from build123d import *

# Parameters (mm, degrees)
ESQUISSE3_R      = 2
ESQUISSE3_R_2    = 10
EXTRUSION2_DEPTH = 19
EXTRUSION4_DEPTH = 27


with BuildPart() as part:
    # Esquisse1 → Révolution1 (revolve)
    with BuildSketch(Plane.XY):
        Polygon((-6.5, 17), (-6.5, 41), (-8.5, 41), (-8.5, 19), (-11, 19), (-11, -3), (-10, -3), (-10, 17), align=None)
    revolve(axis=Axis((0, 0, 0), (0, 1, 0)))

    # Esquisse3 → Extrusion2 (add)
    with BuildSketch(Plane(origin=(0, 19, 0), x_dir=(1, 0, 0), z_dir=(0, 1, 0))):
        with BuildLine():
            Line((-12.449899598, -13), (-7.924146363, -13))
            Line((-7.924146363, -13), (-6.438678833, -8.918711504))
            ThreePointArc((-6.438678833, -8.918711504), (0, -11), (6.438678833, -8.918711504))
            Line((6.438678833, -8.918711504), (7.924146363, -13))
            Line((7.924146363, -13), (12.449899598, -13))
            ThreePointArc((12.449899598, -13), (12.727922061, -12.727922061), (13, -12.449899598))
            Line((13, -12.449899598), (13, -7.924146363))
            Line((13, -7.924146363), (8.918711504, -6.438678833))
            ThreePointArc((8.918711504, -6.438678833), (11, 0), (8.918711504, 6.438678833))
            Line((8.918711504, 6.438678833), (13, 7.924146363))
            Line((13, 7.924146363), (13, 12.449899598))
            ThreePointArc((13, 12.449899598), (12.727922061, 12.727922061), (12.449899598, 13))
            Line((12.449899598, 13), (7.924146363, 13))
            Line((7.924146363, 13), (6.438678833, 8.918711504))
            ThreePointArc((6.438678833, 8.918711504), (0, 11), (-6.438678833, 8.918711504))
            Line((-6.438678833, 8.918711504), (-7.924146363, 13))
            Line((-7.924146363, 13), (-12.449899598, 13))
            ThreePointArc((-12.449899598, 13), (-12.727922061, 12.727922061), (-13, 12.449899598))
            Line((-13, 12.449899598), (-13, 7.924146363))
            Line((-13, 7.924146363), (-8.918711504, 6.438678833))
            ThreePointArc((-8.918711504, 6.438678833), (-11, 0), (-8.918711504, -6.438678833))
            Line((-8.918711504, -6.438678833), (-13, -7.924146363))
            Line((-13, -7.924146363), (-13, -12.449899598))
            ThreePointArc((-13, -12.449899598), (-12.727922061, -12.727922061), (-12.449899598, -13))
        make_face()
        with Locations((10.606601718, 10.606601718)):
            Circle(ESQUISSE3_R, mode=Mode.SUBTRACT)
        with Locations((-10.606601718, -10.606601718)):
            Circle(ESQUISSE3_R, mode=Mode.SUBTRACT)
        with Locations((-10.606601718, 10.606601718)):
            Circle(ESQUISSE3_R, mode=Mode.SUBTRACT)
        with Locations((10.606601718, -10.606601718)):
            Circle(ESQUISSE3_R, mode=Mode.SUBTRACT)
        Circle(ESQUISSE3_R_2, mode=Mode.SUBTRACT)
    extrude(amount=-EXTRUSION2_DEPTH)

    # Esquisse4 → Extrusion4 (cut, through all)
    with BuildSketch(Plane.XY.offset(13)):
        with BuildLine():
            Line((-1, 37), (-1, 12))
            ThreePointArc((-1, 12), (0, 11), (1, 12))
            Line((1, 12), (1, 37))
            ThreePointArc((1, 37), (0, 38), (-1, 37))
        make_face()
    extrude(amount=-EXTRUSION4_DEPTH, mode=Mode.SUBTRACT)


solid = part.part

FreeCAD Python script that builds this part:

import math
import FreeCAD as App
import Part
import Sketcher

V = App.Vector
Q = App.Units.Quantity


def add_polygon(sketch, points):
    """Adds a closed chain of lines whose ends are joined by coincident constraints."""
    first, n = sketch.GeometryCount, len(points)
    for a, b in zip(points, points[1:] + points[:1]):
        sketch.addGeometry(Part.LineSegment(App.Vector(*a, 0), App.Vector(*b, 0)), False)
    for i in range(n):
        sketch.addConstraint(Sketcher.Constraint("Coincident", first + i, 2, first + (i + 1) % n, 1))

doc = App.newDocument("Part")
body = doc.addObject("PartDesign::Body", "Body")

# Sketch on XY plane
sketch1 = doc.addObject("Sketcher::SketchObject", "Sketch")
body.addObject(sketch1)
sketch1.AttachmentSupport = (doc.XY_Plane, [""])
sketch1.MapMode = "FlatFace"
add_polygon(sketch1, [(-6.5, 17), (-6.5, 41), (-8.5, 41), (-8.5, 19), (-11, 19), (-11, -3), (-10, -3), (-10, 17)])  # lines 0-7
sketch1.addConstraint(Sketcher.Constraint("Vertical", 0))
sketch1.addConstraint(Sketcher.Constraint("Horizontal", 1))
sketch1.addConstraint(Sketcher.Constraint("Vertical", 2))
sketch1.addConstraint(Sketcher.Constraint("Horizontal", 3))
sketch1.addConstraint(Sketcher.Constraint("Vertical", 4))
sketch1.addConstraint(Sketcher.Constraint("Horizontal", 5))
sketch1.addConstraint(Sketcher.Constraint("Vertical", 6))
sketch1.addConstraint(Sketcher.Constraint("Horizontal", 7))
sketch1.addConstraint(Sketcher.Constraint("Equal", 2, 4))
sketch1.addConstraint(Sketcher.Constraint("DistanceX", 1, 2, 1, 1, 2.0))
sketch1.addConstraint(Sketcher.Constraint("DistanceX", 5, 1, 5, 2, 1.0))
sketch1.addConstraint(Sketcher.Constraint("DistanceY", 0, 1, 0, 2, 24.0))
sketch1.addConstraint(Sketcher.Constraint("DistanceY", 2, 2, 2, 1, 22.0))
sketch1.addConstraint(Sketcher.Constraint("DistanceX", 3, 2, 3, 1, 2.5))
sketch1.addConstraint(Sketcher.Constraint("DistanceY", -1, 1, 0, 2, 41.0))
sketch1.addConstraint(Sketcher.Constraint("DistanceX", 3, 2, -1, 1, 11.0))
revolution = doc.addObject("PartDesign::Revolution", "Revolution")
body.addObject(revolution)
revolution.Profile = sketch1
revolution.ReferenceAxis = (sketch1, ["V_Axis"])
revolution.Angle = 360

# Sketch on XZ plane
sketch2 = doc.addObject("Sketcher::SketchObject", "Sketch001")
body.addObject(sketch2)
sketch2.AttachmentSupport = (doc.XZ_Plane, [""])
sketch2.MapMode = "FlatFace"
sketch2.AttachmentOffset = App.Placement(V(0, 0, -19), App.Rotation())
sketch2.addGeometry(Part.LineSegment(V(-12.4499, 13, 0), V(-7.924146, 13, 0)), False)
sketch2.addGeometry(Part.LineSegment(V(-7.924146, 13, 0), V(-6.438679, 8.918712, 0)), False)
sketch2.addGeometry(Part.ArcOfCircle(Part.Circle(V(0, 0, 0), V(0, 0, 1), 11), math.radians(54.17338), math.radians(125.82662)), False)
sketch2.addGeometry(Part.LineSegment(V(6.438679, 8.918712, 0), V(7.924146, 13, 0)), False)
sketch2.addGeometry(Part.LineSegment(V(7.924146, 13, 0), V(12.4499, 13, 0)), False)
sketch2.addGeometry(Part.ArcOfCircle(Part.Circle(V(-0.000002, -0.000002, 0), V(0, 0, 1), 18.000002), math.radians(43.761743), math.radians(46.238257)), False)
sketch2.addGeometry(Part.LineSegment(V(13, 12.4499, 0), V(13, 7.924146, 0)), False)
sketch2.addGeometry(Part.LineSegment(V(13, 7.924146, 0), V(8.918712, 6.438679, 0)), False)
sketch2.addGeometry(Part.ArcOfCircle(Part.Circle(V(0, 0, 0), V(0, 0, 1), 11), math.radians(-35.82662), math.radians(35.82662)), False)
sketch2.addGeometry(Part.LineSegment(V(8.918712, -6.438679, 0), V(13, -7.924146, 0)), False)
sketch2.addGeometry(Part.LineSegment(V(13, -7.924146, 0), V(13, -12.4499, 0)), False)
sketch2.addGeometry(Part.ArcOfCircle(Part.Circle(V(-0.000002, 0.000002, 0), V(0, 0, 1), 18.000002), math.radians(-46.238257), math.radians(-43.761743)), False)
sketch2.addGeometry(Part.LineSegment(V(12.4499, -13, 0), V(7.924146, -13, 0)), False)
sketch2.addGeometry(Part.LineSegment(V(7.924146, -13, 0), V(6.438679, -8.918712, 0)), False)
sketch2.addGeometry(Part.ArcOfCircle(Part.Circle(V(0, 0, 0), V(0, 0, 1), 11), math.radians(-125.82662), math.radians(-54.17338)), False)
sketch2.addGeometry(Part.LineSegment(V(-6.438679, -8.918712, 0), V(-7.924146, -13, 0)), False)
sketch2.addGeometry(Part.LineSegment(V(-7.924146, -13, 0), V(-12.4499, -13, 0)), False)
sketch2.addGeometry(Part.ArcOfCircle(Part.Circle(V(0.000002, 0.000002, 0), V(0, 0, 1), 18.000002), math.radians(-136.238257), math.radians(-133.761743)), False)
sketch2.addGeometry(Part.LineSegment(V(-13, -12.4499, 0), V(-13, -7.924146, 0)), False)
sketch2.addGeometry(Part.LineSegment(V(-13, -7.924146, 0), V(-8.918712, -6.438679, 0)), False)
sketch2.addGeometry(Part.ArcOfCircle(Part.Circle(V(0, 0, 0), V(0, 0, 1), 11), math.radians(144.17338), math.radians(215.82662)), False)
sketch2.addGeometry(Part.LineSegment(V(-8.918712, 6.438679, 0), V(-13, 7.924146, 0)), False)
sketch2.addGeometry(Part.LineSegment(V(-13, 7.924146, 0), V(-13, 12.4499, 0)), False)
sketch2.addGeometry(Part.ArcOfCircle(Part.Circle(V(0.000002, -0.000002, 0), V(0, 0, 1), 18.000002), math.radians(133.761743), math.radians(136.238257)), False)
sketch2.addGeometry(Part.Circle(V(-10.606602, 10.606602, 0), V(0, 0, 1), 2), False)
sketch2.addGeometry(Part.Circle(V(10.606602, 10.606602, 0), V(0, 0, 1), 2), False)
sketch2.addGeometry(Part.Circle(V(-10.606602, -10.606602, 0), V(0, 0, 1), 2), False)
sketch2.addGeometry(Part.Circle(V(0, 0, 0), V(0, 0, 1), 10), False)
sketch2.addGeometry(Part.Circle(V(10.606602, -10.606602, 0), V(0, 0, 1), 2), False)
sketch2.addConstraint(Sketcher.Constraint("Coincident", 0, 2, 1, 1))
sketch2.addConstraint(Sketcher.Constraint("Coincident", 1, 2, 2, 2))
sketch2.addConstraint(Sketcher.Constraint("Coincident", 2, 1, 3, 1))
sketch2.addConstraint(Sketcher.Constraint("Coincident", 3, 2, 4, 1))
sketch2.addConstraint(Sketcher.Constraint("Coincident", 4, 2, 5, 2))
sketch2.addConstraint(Sketcher.Constraint("Coincident", 5, 1, 6, 1))
sketch2.addConstraint(Sketcher.Constraint("Coincident", 6, 2, 7, 1))
sketch2.addConstraint(Sketcher.Constraint("Coincident", 7, 2, 8, 2))
sketch2.addConstraint(Sketcher.Constraint("Coincident", 8, 1, 9, 1))
sketch2.addConstraint(Sketcher.Constraint("Coincident", 9, 2, 10, 1))
sketch2.addConstraint(Sketcher.Constraint("Coincident", 10, 2, 11, 2))
sketch2.addConstraint(Sketcher.Constraint("Coincident", 11, 1, 12, 1))
sketch2.addConstraint(Sketcher.Constraint("Coincident", 12, 2, 13, 1))
sketch2.addConstraint(Sketcher.Constraint("Coincident", 13, 2, 14, 2))
sketch2.addConstraint(Sketcher.Constraint("Coincident", 14, 1, 15, 1))
sketch2.addConstraint(Sketcher.Constraint("Coincident", 15, 2, 16, 1))
sketch2.addConstraint(Sketcher.Constraint("Coincident", 16, 2, 17, 2))
sketch2.addConstraint(Sketcher.Constraint("Coincident", 17, 1, 18, 1))
sketch2.addConstraint(Sketcher.Constraint("Coincident", 18, 2, 19, 1))
sketch2.addConstraint(Sketcher.Constraint("Coincident", 19, 2, 20, 2))
sketch2.addConstraint(Sketcher.Constraint("Coincident", 20, 1, 21, 1))
sketch2.addConstraint(Sketcher.Constraint("Coincident", 21, 2, 22, 1))
sketch2.addConstraint(Sketcher.Constraint("Coincident", 22, 2, 23, 2))
sketch2.addConstraint(Sketcher.Constraint("Coincident", 23, 1, 0, 1))
sketch2.addConstraint(Sketcher.Constraint("Horizontal", 0))
sketch2.addConstraint(Sketcher.Constraint("Horizontal", 4))
sketch2.addConstraint(Sketcher.Constraint("Vertical", 6))
sketch2.addConstraint(Sketcher.Constraint("Vertical", 10))
sketch2.addConstraint(Sketcher.Constraint("Horizontal", 12))
sketch2.addConstraint(Sketcher.Constraint("Horizontal", 16))
sketch2.addConstraint(Sketcher.Constraint("Vertical", 18))
sketch2.addConstraint(Sketcher.Constraint("Vertical", 22))
sketch2.addConstraint(Sketcher.Constraint("Coincident", 2, 3, -1, 1))
sketch2.addConstraint(Sketcher.Constraint("Coincident", 5, 3, -1, 1))
sketch2.addConstraint(Sketcher.Constraint("Coincident", 8, 3, -1, 1))
sketch2.addConstraint(Sketcher.Constraint("Coincident", 11, 3, -1, 1))
sketch2.addConstraint(Sketcher.Constraint("Coincident", 14, 3, -1, 1))
sketch2.addConstraint(Sketcher.Constraint("Coincident", 17, 3, -1, 1))
sketch2.addConstraint(Sketcher.Constraint("Coincident", 20, 3, -1, 1))
sketch2.addConstraint(Sketcher.Constraint("Coincident", 23, 3, -1, 1))
sketch2.addConstraint(Sketcher.Constraint("Coincident", 27, 3, -1, 1))
sketch2.addConstraint(Sketcher.Constraint("Equal", 2, 8))
sketch2.addConstraint(Sketcher.Constraint("Equal", 5, 11))
sketch2.addConstraint(Sketcher.Constraint("Equal", 8, 14))
sketch2.addConstraint(Sketcher.Constraint("Equal", 11, 17))
sketch2.addConstraint(Sketcher.Constraint("Equal", 14, 20))
sketch2.addConstraint(Sketcher.Constraint("Equal", 17, 23))
sketch2.addConstraint(Sketcher.Constraint("Equal", 24, 25))
sketch2.addConstraint(Sketcher.Constraint("Equal", 25, 26))
sketch2.addConstraint(Sketcher.Constraint("Equal", 26, 28))
sketch2.addConstraint(Sketcher.Constraint("Symmetric", 25, 3, 26, 3, -1, 1))
sketch2.addConstraint(Sketcher.Constraint("Symmetric", 24, 3, 28, 3, -1, 1))
sketch2.addConstraint(Sketcher.Constraint("Symmetric", 0, 2, 12, 2, -1, 1))
sketch2.addConstraint(Sketcher.Constraint("Symmetric", 3, 2, 15, 2, -1, 1))
sketch2.addConstraint(Sketcher.Constraint("Symmetric", 6, 2, 18, 2, -1, 1))
sketch2.addConstraint(Sketcher.Constraint("Symmetric", 9, 2, 21, 2, -1, 1))
sketch2.addConstraint(Sketcher.Constraint("Symmetric", 24, 3, 25, 3, -2))
sketch2.addConstraint(Sketcher.Constraint("Symmetric", 0, 2, 3, 2, -2))
sketch2.addConstraint(Sketcher.Constraint("Symmetric", 9, 2, 18, 2, -2))
sketch2.addConstraint(Sketcher.Constraint("Perpendicular", 1, 7))
sketch2.addConstraint(Sketcher.Constraint("Perpendicular", 3, 9))
sketch2.addConstraint(Sketcher.Constraint("Perpendicular", 7, 13))
sketch2.addConstraint(Sketcher.Constraint("Perpendicular", 9, 15))
sketch2.addConstraint(Sketcher.Constraint("Perpendicular", 13, 19))
sketch2.addConstraint(Sketcher.Constraint("Perpendicular", 15, 21))
sketch2.addConstraint(Sketcher.Constraint("Horizontal", 1, 2, 2, 1))
sketch2.addConstraint(Sketcher.Constraint("Equal", 16, 6))
sketch2.addConstraint(Sketcher.Constraint("Equal", 3, 7))
sketch2.addConstraint(Sketcher.Constraint("Diameter", 24, 4.0))
sketch2.addConstraint(Sketcher.Constraint("Diameter", 27, 20.0))
sketch2.addConstraint(Sketcher.Constraint("Radius", 2, 11.0))
sketch2.addConstraint(Sketcher.Constraint("Angle", 1, Q("-70 deg")))
sketch2.addConstraint(Sketcher.Constraint("DistanceY", -1, 1, 0, 2, 13.0))
sketch2.addConstraint(Sketcher.Constraint("Radius", 5, 18.000002))
sketch2.addConstraint(Sketcher.Constraint("DistanceX", 24, 3, -1, 1, 10.606602))
sketch2.addConstraint(Sketcher.Constraint("DistanceY", -1, 1, 24, 3, 10.606602))
sketch2.addConstraint(Sketcher.Constraint("DistanceX", 0, 1, 0, 2, 4.525753))
pad1 = doc.addObject("PartDesign::Pad", "Pad")
body.addObject(pad1)
pad1.Profile = sketch2
pad1.Length = 19

# Sketch on XY plane
sketch3 = doc.addObject("Sketcher::SketchObject", "Sketch002")
body.addObject(sketch3)
sketch3.AttachmentSupport = (doc.XY_Plane, [""])
sketch3.MapMode = "FlatFace"
sketch3.AttachmentOffset = App.Placement(V(0, 0, 13), App.Rotation())
sketch3.addGeometry(Part.LineSegment(V(-1, 37, 0), V(-1, 12, 0)), False)
sketch3.addGeometry(Part.ArcOfCircle(Part.Circle(V(0, 12, 0), V(0, 0, 1), 1), math.radians(180), math.radians(360)), False)
sketch3.addGeometry(Part.LineSegment(V(1, 12, 0), V(1, 37, 0)), False)
sketch3.addGeometry(Part.ArcOfCircle(Part.Circle(V(0, 37, 0), V(0, 0, 1), 1), math.radians(0), math.radians(180)), False)
sketch3.addConstraint(Sketcher.Constraint("Tangent", 0, 2, 1, 1))
sketch3.addConstraint(Sketcher.Constraint("Tangent", 1, 2, 2, 1))
sketch3.addConstraint(Sketcher.Constraint("Tangent", 2, 2, 3, 1))
sketch3.addConstraint(Sketcher.Constraint("Tangent", 3, 2, 0, 1))
sketch3.addConstraint(Sketcher.Constraint("Vertical", 0))
sketch3.addConstraint(Sketcher.Constraint("Vertical", 2))
sketch3.addConstraint(Sketcher.Constraint("PointOnObject", 1, 3, -2))
sketch3.addConstraint(Sketcher.Constraint("Radius", 1, 1.0))
sketch3.addConstraint(Sketcher.Constraint("DistanceY", 0, 2, 0, 1, 25.0))
sketch3.addConstraint(Sketcher.Constraint("DistanceY", -1, 1, 1, 3, 12.0))
pocket1 = doc.addObject("PartDesign::Pocket", "Pocket")
body.addObject(pocket1)
pocket1.Profile = sketch3
pocket1.Type = "ThroughAll"

doc.recompute()
